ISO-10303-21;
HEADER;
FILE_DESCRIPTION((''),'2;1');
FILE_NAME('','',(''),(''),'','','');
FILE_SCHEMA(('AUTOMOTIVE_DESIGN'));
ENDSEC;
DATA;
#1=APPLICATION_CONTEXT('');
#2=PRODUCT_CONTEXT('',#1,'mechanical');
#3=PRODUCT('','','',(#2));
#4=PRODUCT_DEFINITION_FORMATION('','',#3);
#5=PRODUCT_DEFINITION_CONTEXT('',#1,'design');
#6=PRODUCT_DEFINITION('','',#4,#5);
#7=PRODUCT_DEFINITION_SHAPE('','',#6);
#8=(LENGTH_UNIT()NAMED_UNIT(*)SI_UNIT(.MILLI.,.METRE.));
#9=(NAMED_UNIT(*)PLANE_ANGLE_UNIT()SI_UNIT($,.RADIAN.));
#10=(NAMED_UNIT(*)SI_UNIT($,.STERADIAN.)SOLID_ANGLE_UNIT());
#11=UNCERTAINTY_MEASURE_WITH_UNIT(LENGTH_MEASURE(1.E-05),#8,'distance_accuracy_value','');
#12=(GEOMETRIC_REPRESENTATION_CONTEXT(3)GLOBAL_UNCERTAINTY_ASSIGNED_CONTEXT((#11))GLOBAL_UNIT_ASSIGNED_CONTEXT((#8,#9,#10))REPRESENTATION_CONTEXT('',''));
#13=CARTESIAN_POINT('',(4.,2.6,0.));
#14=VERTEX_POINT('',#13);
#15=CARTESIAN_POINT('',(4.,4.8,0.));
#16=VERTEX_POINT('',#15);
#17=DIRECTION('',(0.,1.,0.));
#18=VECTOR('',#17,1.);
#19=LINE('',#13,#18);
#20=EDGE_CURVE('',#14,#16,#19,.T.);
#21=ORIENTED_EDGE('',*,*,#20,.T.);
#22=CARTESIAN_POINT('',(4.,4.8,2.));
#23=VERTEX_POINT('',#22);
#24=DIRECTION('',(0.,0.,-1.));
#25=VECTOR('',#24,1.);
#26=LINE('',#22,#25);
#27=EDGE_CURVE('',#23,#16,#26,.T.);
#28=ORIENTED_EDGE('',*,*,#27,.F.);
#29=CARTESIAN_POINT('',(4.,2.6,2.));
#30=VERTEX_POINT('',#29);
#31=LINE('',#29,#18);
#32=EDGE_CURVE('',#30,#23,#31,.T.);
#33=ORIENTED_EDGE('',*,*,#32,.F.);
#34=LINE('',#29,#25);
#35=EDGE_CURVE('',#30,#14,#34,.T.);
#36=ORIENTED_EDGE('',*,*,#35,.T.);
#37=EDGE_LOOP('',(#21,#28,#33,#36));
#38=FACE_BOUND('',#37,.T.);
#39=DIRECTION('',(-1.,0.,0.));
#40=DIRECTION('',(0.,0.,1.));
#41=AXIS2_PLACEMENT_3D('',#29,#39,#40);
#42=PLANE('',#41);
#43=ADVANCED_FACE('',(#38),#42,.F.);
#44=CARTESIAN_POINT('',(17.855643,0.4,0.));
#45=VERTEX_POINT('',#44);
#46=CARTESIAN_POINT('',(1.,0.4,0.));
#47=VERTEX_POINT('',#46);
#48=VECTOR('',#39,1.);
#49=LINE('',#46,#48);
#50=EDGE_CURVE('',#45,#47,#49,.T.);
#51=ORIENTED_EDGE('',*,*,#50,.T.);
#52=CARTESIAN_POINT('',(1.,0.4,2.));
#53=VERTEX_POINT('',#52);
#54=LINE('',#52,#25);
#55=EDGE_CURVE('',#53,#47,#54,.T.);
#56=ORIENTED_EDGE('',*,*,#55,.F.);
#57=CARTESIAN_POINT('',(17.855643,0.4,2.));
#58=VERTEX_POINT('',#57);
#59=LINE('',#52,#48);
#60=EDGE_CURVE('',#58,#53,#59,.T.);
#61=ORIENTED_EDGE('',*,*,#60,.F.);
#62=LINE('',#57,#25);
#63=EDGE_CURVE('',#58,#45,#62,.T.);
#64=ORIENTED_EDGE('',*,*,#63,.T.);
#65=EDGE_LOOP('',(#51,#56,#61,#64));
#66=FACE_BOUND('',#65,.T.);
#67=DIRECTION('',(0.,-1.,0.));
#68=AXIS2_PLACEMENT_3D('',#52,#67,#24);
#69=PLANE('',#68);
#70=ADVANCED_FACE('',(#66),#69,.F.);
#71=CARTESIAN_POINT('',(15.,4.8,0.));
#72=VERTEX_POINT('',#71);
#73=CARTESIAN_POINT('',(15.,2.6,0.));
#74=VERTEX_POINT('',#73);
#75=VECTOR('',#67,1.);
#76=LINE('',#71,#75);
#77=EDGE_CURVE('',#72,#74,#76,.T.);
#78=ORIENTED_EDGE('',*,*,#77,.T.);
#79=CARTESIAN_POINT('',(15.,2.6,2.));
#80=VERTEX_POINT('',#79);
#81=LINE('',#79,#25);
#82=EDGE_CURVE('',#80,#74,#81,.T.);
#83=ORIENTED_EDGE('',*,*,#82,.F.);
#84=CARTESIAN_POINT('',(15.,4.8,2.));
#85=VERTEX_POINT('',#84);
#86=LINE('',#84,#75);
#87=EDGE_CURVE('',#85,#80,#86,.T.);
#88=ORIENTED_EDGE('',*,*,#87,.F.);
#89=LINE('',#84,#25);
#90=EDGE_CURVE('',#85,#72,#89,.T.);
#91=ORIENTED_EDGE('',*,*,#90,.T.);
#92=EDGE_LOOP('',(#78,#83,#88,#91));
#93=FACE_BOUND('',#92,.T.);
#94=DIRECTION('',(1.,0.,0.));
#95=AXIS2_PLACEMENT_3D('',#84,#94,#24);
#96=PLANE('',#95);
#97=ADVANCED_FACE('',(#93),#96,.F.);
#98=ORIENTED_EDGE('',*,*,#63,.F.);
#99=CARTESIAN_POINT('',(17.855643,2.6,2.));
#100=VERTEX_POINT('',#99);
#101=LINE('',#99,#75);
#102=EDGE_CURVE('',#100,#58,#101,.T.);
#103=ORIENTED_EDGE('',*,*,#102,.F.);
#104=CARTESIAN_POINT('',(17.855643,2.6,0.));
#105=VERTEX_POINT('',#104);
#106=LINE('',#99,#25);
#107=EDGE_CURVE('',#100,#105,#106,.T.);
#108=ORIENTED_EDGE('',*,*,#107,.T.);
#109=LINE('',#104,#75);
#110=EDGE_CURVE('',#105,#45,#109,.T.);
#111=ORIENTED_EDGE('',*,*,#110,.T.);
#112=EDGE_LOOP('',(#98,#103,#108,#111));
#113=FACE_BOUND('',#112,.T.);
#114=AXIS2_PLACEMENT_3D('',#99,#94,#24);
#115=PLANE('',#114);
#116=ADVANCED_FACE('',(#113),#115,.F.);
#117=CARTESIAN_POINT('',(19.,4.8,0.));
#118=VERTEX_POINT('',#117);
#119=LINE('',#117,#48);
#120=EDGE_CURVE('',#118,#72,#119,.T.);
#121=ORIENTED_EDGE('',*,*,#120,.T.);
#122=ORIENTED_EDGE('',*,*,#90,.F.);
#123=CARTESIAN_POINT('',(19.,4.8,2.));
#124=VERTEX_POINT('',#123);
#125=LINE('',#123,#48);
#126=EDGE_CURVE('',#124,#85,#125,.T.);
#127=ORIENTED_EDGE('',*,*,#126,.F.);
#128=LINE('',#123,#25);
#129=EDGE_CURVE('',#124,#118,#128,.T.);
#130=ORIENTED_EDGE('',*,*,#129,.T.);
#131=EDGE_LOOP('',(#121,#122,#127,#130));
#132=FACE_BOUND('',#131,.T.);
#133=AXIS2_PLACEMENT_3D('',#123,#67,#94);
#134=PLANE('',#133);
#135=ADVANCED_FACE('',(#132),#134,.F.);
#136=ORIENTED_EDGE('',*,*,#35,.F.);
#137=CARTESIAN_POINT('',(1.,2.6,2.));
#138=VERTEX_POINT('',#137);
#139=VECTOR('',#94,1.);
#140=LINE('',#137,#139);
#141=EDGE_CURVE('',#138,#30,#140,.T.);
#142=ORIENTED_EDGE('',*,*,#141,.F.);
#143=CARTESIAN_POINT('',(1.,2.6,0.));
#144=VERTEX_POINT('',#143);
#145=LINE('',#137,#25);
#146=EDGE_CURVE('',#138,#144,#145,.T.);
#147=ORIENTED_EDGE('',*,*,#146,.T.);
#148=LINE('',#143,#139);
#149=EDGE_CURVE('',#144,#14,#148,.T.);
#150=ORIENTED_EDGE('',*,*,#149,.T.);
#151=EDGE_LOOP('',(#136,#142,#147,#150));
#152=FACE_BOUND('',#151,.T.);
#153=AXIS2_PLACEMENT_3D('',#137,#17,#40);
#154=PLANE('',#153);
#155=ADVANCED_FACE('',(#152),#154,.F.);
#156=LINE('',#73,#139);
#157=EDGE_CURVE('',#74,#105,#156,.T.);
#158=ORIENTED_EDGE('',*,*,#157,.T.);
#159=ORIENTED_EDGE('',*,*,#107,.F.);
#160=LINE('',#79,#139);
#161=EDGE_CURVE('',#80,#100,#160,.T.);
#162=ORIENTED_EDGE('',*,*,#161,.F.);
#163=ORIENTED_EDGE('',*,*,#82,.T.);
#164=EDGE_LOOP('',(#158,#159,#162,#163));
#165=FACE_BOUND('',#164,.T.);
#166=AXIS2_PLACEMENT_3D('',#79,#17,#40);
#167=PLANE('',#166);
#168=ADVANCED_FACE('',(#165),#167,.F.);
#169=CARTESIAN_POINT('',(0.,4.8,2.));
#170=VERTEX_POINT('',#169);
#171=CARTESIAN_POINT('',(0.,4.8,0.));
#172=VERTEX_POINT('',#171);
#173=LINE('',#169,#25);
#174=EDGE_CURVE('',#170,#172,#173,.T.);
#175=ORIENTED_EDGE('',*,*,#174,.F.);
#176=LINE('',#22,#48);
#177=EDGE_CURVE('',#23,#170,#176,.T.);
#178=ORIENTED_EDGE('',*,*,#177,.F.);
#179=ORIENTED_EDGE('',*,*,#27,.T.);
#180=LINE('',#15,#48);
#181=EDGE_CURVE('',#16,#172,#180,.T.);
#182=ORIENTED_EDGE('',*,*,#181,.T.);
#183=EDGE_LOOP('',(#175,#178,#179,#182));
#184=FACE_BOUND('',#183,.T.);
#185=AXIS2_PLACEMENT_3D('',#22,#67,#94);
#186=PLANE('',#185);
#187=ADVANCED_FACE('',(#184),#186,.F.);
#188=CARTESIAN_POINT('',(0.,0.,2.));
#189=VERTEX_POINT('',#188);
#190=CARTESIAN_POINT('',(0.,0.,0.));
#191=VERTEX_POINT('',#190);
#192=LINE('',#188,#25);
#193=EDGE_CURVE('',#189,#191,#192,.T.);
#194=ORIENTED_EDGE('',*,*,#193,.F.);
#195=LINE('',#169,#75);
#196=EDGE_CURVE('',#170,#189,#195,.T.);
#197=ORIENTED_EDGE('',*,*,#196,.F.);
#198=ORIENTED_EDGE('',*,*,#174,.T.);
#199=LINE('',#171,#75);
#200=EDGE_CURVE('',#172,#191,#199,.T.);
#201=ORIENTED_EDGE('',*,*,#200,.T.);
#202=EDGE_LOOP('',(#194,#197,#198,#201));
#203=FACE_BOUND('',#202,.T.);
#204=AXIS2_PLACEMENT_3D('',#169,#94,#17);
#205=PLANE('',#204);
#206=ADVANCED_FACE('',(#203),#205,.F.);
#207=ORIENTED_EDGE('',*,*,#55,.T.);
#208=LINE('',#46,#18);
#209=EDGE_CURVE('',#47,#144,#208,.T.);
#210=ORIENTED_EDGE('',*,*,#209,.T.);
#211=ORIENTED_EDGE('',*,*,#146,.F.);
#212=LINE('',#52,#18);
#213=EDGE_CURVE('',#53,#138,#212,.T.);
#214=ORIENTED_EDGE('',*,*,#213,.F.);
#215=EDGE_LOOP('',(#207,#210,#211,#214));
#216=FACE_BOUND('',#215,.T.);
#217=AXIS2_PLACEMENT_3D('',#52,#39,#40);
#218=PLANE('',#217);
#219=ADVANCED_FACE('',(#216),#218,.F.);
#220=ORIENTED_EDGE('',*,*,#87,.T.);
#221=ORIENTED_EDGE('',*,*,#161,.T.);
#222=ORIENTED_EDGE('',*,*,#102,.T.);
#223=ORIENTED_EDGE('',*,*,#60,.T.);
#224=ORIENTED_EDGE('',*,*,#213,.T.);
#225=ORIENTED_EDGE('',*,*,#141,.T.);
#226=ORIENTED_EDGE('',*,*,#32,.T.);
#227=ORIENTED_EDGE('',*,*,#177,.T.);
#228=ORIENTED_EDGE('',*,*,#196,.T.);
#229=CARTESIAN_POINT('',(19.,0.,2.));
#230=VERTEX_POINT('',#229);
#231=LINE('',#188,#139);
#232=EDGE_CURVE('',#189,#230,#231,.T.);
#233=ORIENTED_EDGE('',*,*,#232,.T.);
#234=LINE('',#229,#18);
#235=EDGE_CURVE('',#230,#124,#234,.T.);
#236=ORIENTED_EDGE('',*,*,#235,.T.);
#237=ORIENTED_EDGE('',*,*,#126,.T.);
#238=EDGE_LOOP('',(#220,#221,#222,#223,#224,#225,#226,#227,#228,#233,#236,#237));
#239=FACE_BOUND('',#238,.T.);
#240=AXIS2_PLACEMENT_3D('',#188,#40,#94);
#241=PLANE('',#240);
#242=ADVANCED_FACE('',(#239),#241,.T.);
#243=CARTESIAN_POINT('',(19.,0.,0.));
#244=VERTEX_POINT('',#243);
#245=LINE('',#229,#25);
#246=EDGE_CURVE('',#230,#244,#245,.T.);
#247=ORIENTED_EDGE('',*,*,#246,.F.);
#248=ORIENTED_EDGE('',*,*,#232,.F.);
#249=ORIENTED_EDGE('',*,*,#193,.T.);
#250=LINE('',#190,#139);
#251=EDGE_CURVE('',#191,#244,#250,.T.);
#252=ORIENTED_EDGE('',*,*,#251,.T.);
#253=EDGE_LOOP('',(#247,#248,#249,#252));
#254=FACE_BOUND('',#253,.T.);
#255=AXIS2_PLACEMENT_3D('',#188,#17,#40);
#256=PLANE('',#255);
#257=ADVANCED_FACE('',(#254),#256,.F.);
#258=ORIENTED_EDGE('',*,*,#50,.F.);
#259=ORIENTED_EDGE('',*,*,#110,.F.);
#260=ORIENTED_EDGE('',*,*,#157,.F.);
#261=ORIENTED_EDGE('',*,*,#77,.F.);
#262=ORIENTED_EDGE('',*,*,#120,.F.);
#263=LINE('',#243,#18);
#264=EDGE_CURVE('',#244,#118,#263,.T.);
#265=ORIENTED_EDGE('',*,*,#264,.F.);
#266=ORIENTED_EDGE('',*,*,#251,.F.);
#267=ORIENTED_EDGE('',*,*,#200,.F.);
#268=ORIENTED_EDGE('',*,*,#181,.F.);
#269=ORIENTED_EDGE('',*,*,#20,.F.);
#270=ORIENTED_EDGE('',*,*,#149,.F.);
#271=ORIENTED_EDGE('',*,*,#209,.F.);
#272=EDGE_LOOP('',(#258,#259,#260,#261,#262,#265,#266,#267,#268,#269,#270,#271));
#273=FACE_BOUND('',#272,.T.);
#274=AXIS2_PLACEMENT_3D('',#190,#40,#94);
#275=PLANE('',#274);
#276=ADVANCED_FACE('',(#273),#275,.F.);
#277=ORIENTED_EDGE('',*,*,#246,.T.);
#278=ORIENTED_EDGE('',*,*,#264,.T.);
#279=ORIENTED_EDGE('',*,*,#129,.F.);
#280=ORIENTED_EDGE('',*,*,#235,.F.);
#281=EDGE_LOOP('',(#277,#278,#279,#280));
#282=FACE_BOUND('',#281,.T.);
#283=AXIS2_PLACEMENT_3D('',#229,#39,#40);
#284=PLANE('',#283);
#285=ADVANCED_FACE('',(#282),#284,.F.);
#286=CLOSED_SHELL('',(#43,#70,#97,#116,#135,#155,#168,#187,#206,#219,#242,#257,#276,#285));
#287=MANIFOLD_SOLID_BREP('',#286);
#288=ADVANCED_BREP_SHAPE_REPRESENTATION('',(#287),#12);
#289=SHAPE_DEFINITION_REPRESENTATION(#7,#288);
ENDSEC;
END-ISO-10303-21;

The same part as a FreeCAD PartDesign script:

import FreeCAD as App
import Part
import Sketcher

doc = App.newDocument("Part")
body = doc.addObject("PartDesign::Body", "Body")

sketch1 = body.newObject("Sketcher::SketchObject", "Sketch")
sketch1.AttachmentSupport = (doc.getObject("XY_Plane"), [""])
sketch1.MapMode = "FlatFace"
sketch1.addGeometry([
    Part.LineSegment(App.Vector(0, 0, 0), App.Vector(19, 0, 0)),
    Part.LineSegment(App.Vector(19, 0, 0), App.Vector(19, 4.8, 0)),
    Part.LineSegment(App.Vector(19, 4.8, 0), App.Vector(15, 4.8, 0)),
    Part.LineSegment(App.Vector(15, 4.8, 0), App.Vector(15, 2.6, 0)),
    Part.LineSegment(App.Vector(15, 2.6, 0), App.Vector(17.9, 2.6, 0)),
    Part.LineSegment(App.Vector(17.9, 2.6, 0), App.Vector(17.9, 0.4, 0)),
    Part.LineSegment(App.Vector(17.9, 0.4, 0), App.Vector(1, 0.4, 0)),
    Part.LineSegment(App.Vector(1, 0.4, 0), App.Vector(1, 2.6, 0)),
    Part.LineSegment(App.Vector(1, 2.6, 0), App.Vector(4, 2.6, 0)),
    Part.LineSegment(App.Vector(4, 2.6, 0), App.Vector(4, 4.8, 0)),
    Part.LineSegment(App.Vector(4, 4.8, 0), App.Vector(0, 4.8, 0)),
    Part.LineSegment(App.Vector(0, 4.8, 0), App.Vector(0, 0, 0)),
], False)
sketch1.addConstraint([
    Sketcher.Constraint("Coincident", 0, 2, 1, 1),
    Sketcher.Constraint("Coincident", 1, 2, 2, 1),
    Sketcher.Constraint("Coincident", 2, 2, 3, 1),
    Sketcher.Constraint("Coincident", 3, 2, 4, 1),
    Sketcher.Constraint("Coincident", 4, 2, 5, 1),
    Sketcher.Constraint("Coincident", 5, 2, 6, 1),
    Sketcher.Constraint("Coincident", 6, 2, 7, 1),
    Sketcher.Constraint("Coincident", 7, 2, 8, 1),
    Sketcher.Constraint("Coincident", 8, 2, 9, 1),
    Sketcher.Constraint("Coincident", 9, 2, 10, 1),
    Sketcher.Constraint("Coincident", 10, 2, 11, 1),
    Sketcher.Constraint("Coincident", 11, 2, 0, 1),
    Sketcher.Constraint("Horizontal", 0),
    Sketcher.Constraint("Vertical", 1),
    Sketcher.Constraint("Horizontal", 2),
    Sketcher.Constraint("Vertical", 3),
    Sketcher.Constraint("Horizontal", 4),
    Sketcher.Constraint("Vertical", 5),
    Sketcher.Constraint("Horizontal", 6),
    Sketcher.Constraint("Vertical", 7),
    Sketcher.Constraint("Horizontal", 8),
    Sketcher.Constraint("Vertical", 9),
    Sketcher.Constraint("Horizontal", 10),
    Sketcher.Constraint("Vertical", 11),
    Sketcher.Constraint("Coincident", 11, 2, -1, 1),
    Sketcher.Constraint("Horizontal", 4, 2, 7, 2),
    Sketcher.Constraint("Horizontal", 2, 2, 9, 2),
    Sketcher.Constraint("Equal", 2, 10),
    Sketcher.Constraint("Equal", 3, 5),
    Sketcher.Constraint("DistanceX", 0, 1, 0, 2, 19.0),
    Sketcher.Constraint("DistanceX", 2, 2, 2, 1, 4.0),
    Sketcher.Constraint("DistanceX", 8, 1, 8, 2, 3.0),
    Sketcher.Constraint("DistanceY", 1, 1, 1, 2, 4.8),
    Sketcher.Constraint("DistanceY", 3, 2, 3, 1, 2.2),
    Sketcher.Constraint("DistanceX", 4, 1, 4, 2, 2.855643),
])
pad1 = body.newObject("PartDesign::Pad", "Pad")
pad1.Profile = sketch1
pad1.Length = 2

doc.recompute()
